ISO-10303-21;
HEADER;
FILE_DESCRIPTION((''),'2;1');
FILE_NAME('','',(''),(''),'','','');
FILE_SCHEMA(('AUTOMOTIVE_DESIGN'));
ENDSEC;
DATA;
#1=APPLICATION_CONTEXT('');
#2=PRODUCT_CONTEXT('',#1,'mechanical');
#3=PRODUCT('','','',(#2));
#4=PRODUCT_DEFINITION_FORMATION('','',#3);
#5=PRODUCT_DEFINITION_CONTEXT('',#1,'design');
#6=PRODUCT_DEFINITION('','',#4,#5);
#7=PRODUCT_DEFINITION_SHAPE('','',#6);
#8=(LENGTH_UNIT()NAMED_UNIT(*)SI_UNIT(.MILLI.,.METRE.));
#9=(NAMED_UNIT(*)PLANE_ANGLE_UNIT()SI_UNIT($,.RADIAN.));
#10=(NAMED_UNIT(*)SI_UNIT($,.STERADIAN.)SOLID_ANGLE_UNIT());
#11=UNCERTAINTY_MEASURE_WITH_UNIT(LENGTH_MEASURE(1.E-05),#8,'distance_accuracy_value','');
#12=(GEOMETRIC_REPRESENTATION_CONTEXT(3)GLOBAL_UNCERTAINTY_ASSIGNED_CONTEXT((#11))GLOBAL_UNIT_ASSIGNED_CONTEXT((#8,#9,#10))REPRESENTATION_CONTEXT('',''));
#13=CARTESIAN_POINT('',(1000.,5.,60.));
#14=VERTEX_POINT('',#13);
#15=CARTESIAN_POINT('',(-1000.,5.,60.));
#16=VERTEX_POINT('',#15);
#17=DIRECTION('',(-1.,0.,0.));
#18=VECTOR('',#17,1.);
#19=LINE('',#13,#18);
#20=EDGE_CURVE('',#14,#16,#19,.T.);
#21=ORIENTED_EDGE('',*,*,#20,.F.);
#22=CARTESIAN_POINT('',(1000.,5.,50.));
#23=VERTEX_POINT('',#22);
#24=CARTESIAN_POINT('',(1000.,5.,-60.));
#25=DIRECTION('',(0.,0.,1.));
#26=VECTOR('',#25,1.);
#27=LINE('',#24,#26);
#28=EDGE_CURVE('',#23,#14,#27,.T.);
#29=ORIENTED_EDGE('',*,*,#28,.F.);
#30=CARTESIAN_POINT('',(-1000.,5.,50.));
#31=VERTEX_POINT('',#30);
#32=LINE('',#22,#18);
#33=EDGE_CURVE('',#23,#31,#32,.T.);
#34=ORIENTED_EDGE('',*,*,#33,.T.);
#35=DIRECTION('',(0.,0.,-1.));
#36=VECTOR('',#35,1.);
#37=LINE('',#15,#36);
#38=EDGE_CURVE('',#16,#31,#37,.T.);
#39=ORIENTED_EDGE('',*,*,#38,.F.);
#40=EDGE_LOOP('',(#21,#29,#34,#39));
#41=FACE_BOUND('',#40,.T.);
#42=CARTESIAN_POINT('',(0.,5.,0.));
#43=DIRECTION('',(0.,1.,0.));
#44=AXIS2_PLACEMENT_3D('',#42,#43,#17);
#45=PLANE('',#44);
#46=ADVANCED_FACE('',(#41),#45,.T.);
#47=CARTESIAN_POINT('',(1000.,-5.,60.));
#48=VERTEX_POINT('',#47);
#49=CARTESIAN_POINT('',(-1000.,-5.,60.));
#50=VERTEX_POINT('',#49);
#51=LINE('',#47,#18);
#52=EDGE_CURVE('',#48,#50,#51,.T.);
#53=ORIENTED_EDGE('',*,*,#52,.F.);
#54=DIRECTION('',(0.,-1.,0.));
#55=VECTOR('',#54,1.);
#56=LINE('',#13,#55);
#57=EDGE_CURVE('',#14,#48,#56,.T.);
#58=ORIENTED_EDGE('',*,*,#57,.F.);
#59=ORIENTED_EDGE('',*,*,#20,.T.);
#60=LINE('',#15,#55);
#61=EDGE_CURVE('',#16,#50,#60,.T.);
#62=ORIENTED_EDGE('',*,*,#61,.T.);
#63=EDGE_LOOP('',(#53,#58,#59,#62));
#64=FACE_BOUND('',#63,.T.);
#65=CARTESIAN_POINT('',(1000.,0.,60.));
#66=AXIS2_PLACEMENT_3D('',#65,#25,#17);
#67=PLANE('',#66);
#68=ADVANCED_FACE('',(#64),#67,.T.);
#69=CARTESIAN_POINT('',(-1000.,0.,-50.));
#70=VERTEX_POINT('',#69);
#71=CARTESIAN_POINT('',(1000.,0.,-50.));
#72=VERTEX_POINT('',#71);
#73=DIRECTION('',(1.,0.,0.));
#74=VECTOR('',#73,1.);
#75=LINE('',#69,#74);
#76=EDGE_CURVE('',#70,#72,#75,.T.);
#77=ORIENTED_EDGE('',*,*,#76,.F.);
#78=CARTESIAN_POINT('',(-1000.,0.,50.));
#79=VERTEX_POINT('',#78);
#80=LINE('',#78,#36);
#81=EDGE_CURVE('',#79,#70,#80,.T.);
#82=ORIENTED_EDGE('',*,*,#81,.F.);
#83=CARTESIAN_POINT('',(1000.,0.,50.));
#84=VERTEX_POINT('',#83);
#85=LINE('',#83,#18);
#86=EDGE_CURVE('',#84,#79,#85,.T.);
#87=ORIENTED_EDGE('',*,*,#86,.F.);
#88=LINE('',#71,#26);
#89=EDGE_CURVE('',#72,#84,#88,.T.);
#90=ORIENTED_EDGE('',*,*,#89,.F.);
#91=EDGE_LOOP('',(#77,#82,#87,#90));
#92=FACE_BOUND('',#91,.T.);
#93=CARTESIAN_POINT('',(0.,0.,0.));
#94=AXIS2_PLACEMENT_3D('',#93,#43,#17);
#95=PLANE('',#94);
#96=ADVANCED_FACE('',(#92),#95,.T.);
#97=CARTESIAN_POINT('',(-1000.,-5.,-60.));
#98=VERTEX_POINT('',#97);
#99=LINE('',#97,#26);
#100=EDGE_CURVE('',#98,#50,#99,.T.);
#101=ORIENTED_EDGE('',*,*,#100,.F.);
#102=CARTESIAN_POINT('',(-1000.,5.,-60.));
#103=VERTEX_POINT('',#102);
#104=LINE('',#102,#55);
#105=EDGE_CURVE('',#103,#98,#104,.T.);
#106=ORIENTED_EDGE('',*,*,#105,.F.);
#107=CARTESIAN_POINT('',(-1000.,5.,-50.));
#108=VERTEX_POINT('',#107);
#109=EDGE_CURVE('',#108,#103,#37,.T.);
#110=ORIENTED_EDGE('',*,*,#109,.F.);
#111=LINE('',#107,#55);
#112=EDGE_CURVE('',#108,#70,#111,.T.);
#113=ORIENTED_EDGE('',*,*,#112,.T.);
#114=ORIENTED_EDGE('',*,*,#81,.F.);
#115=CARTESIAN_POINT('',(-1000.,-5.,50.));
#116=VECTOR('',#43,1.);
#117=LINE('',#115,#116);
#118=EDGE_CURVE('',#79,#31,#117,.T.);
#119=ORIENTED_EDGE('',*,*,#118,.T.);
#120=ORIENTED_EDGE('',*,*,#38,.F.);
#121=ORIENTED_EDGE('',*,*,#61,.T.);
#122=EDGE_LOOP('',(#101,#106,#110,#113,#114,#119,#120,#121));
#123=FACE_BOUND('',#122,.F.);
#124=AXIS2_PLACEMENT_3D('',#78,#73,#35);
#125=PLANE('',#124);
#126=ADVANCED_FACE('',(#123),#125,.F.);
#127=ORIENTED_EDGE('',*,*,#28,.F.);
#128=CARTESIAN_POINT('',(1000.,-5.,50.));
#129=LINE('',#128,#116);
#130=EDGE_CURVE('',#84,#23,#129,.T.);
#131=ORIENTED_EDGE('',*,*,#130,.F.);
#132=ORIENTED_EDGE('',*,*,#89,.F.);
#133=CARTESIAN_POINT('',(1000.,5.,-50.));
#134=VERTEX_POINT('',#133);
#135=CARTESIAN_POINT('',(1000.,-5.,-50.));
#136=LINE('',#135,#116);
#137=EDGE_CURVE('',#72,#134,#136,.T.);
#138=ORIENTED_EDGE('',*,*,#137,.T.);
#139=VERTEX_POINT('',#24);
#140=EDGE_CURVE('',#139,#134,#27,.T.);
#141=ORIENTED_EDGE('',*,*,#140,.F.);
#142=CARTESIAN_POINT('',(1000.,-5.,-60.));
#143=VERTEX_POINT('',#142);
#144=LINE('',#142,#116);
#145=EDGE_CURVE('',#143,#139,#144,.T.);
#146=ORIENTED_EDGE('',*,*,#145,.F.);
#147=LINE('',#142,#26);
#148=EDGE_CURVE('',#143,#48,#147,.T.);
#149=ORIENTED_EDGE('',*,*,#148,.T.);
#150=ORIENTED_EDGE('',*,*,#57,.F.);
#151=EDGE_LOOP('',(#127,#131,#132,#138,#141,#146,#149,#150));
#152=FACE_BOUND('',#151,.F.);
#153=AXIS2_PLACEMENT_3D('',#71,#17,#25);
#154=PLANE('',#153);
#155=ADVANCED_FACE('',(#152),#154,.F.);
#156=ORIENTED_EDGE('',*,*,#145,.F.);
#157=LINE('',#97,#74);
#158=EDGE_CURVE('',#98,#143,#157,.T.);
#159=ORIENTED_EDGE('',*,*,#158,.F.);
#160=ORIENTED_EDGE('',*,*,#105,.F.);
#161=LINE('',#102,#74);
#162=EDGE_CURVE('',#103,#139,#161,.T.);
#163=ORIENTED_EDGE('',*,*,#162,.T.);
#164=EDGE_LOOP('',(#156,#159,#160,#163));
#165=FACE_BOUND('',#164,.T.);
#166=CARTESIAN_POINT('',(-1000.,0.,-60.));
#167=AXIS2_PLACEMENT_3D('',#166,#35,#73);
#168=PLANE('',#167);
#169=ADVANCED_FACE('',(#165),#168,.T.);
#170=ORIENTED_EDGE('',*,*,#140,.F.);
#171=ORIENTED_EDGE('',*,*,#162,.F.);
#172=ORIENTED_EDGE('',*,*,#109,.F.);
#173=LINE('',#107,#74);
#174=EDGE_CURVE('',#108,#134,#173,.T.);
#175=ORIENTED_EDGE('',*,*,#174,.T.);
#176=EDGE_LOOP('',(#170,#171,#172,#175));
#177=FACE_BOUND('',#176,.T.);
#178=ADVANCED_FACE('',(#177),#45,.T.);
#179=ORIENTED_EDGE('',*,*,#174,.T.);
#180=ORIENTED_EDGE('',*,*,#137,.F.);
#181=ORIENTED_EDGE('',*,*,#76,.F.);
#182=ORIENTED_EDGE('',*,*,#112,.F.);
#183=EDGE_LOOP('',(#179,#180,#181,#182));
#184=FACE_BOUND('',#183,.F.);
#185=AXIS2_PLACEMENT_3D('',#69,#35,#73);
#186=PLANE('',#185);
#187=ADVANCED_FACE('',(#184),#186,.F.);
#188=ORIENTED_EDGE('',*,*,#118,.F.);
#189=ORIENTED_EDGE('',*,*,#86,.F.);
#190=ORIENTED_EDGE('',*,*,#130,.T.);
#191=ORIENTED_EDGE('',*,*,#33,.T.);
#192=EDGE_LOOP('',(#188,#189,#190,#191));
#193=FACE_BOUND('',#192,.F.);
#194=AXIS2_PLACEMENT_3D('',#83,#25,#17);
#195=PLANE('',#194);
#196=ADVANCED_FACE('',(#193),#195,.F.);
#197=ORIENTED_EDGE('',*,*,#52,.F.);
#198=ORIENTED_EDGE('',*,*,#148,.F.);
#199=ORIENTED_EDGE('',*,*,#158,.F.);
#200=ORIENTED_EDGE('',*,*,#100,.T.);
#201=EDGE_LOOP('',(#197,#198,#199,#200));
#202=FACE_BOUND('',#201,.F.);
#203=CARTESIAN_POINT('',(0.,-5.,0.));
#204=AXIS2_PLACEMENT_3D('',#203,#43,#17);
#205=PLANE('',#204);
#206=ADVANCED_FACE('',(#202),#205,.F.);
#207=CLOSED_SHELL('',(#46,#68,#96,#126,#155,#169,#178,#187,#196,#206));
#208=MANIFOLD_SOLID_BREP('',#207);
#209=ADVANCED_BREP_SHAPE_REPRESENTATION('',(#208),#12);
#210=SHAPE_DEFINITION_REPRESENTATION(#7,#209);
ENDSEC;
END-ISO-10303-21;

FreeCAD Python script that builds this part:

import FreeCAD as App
import Part
import Sketcher

doc = App.newDocument("Part")
body = doc.addObject("PartDesign::Body", "Body")

# Sketch on XZ plane
sketch1 = body.newObject("Sketcher::SketchObject", "Sketch")
sketch1.AttachmentSupport = (doc.getObject("XZ_Plane"), [""])
sketch1.MapMode = "FlatFace"
sketch1.addGeometry([
    Part.LineSegment(App.Vector(-1000, 50, 0), App.Vector(1000, 50, 0)),
    Part.LineSegment(App.Vector(1000, 50, 0), App.Vector(1000, -50, 0)),
    Part.LineSegment(App.Vector(1000, -50, 0), App.Vector(-1000, -50, 0)),
    Part.LineSegment(App.Vector(-1000, -50, 0), App.Vector(-1000, 50, 0)),
], False)
sketch1.addConstraint([
    Sketcher.Constraint("Coincident", 0, 2, 1, 1),
    Sketcher.Constraint("Coincident", 1, 2, 2, 1),
    Sketcher.Constraint("Coincident", 2, 2, 3, 1),
    Sketcher.Constraint("Coincident", 3, 2, 0, 1),
    Sketcher.Constraint("Horizontal", 0),
    Sketcher.Constraint("Vertical", 1),
    Sketcher.Constraint("Horizontal", 2),
    Sketcher.Constraint("Vertical", 3),
    Sketcher.Constraint("Symmetric", 0, 2, 2, 2, -1, 1),
    Sketcher.Constraint("DistanceX", 0, 1, 0, 2, 2000.0),
    Sketcher.Constraint("DistanceY", 1, 2, 1, 1, 100.0),
])
pad1 = body.newObject("PartDesign::Pad", "Pad")
pad1.Profile = sketch1
pad1.Length = 5

# Sketch on XZ plane
sketch2 = body.newObject("Sketcher::SketchObject", "Sketch001")
sketch2.AttachmentSupport = (doc.getObject("XZ_Plane"), [""])
sketch2.MapMode = "FlatFace"
sketch2.addGeometry([
    Part.LineSegment(App.Vector(1000, 60, 0), App.Vector(1000, 50, 0)),  # 0
    Part.LineSegment(App.Vector(1000, 50, 0), App.Vector(-1000, 50, 0)),  # 1
    Part.LineSegment(App.Vector(-1000, 50, 0), App.Vector(-1000, 60, 0)),  # 2
    Part.LineSegment(App.Vector(-1000, 60, 0), App.Vector(1000, 60, 0)),  # 3
    Part.LineSegment(App.Vector(-1000, -50, 0), App.Vector(1000, -50, 0)),  # 4
    Part.LineSegment(App.Vector(1000, -50, 0), App.Vector(1000, -60, 0)),  # 5
    Part.LineSegment(App.Vector(1000, -60, 0), App.Vector(-1000, -60, 0)),  # 6
    Part.LineSegment(App.Vector(-1000, -60, 0), App.Vector(-1000, -50, 0)),  # 7
], False)
sketch2.addConstraint([
    Sketcher.Constraint("Coincident", 0, 2, 1, 1),
    Sketcher.Constraint("Coincident", 1, 2, 2, 1),
    Sketcher.Constraint("Coincident", 2, 2, 3, 1),
    Sketcher.Constraint("Coincident", 3, 2, 0, 1),
    Sketcher.Constraint("Coincident", 4, 2, 5, 1),
    Sketcher.Constraint("Coincident", 5, 2, 6, 1),
    Sketcher.Constraint("Coincident", 6, 2, 7, 1),
    Sketcher.Constraint("Coincident", 7, 2, 4, 1),
    Sketcher.Constraint("Vertical", 0),
    Sketcher.Constraint("Horizontal", 1),
    Sketcher.Constraint("Vertical", 2),
    Sketcher.Constraint("Horizontal", 3),
    Sketcher.Constraint("Horizontal", 4),
    Sketcher.Constraint("Vertical", 5),
    Sketcher.Constraint("Horizontal", 6),
    Sketcher.Constraint("Vertical", 7),
    Sketcher.Constraint("Symmetric", 1, 2, 4, 2, -1, 1),
    Sketcher.Constraint("Symmetric", 3, 2, 6, 2, -1, 1),
    Sketcher.Constraint("Vertical", 3, 2, 4, 2),
    Sketcher.Constraint("DistanceX", 1, 2, 1, 1, 2000.0),
    Sketcher.Constraint("DistanceY", 4, 2, 0, 2, 100.0),
    Sketcher.Constraint("DistanceY", 5, 2, 3, 2, 120.0),
])
pad2 = body.newObject("PartDesign::Pad", "Pad001")
pad2.Profile = sketch2
pad2.Length = 10
pad2.Midplane = True

doc.recompute()
